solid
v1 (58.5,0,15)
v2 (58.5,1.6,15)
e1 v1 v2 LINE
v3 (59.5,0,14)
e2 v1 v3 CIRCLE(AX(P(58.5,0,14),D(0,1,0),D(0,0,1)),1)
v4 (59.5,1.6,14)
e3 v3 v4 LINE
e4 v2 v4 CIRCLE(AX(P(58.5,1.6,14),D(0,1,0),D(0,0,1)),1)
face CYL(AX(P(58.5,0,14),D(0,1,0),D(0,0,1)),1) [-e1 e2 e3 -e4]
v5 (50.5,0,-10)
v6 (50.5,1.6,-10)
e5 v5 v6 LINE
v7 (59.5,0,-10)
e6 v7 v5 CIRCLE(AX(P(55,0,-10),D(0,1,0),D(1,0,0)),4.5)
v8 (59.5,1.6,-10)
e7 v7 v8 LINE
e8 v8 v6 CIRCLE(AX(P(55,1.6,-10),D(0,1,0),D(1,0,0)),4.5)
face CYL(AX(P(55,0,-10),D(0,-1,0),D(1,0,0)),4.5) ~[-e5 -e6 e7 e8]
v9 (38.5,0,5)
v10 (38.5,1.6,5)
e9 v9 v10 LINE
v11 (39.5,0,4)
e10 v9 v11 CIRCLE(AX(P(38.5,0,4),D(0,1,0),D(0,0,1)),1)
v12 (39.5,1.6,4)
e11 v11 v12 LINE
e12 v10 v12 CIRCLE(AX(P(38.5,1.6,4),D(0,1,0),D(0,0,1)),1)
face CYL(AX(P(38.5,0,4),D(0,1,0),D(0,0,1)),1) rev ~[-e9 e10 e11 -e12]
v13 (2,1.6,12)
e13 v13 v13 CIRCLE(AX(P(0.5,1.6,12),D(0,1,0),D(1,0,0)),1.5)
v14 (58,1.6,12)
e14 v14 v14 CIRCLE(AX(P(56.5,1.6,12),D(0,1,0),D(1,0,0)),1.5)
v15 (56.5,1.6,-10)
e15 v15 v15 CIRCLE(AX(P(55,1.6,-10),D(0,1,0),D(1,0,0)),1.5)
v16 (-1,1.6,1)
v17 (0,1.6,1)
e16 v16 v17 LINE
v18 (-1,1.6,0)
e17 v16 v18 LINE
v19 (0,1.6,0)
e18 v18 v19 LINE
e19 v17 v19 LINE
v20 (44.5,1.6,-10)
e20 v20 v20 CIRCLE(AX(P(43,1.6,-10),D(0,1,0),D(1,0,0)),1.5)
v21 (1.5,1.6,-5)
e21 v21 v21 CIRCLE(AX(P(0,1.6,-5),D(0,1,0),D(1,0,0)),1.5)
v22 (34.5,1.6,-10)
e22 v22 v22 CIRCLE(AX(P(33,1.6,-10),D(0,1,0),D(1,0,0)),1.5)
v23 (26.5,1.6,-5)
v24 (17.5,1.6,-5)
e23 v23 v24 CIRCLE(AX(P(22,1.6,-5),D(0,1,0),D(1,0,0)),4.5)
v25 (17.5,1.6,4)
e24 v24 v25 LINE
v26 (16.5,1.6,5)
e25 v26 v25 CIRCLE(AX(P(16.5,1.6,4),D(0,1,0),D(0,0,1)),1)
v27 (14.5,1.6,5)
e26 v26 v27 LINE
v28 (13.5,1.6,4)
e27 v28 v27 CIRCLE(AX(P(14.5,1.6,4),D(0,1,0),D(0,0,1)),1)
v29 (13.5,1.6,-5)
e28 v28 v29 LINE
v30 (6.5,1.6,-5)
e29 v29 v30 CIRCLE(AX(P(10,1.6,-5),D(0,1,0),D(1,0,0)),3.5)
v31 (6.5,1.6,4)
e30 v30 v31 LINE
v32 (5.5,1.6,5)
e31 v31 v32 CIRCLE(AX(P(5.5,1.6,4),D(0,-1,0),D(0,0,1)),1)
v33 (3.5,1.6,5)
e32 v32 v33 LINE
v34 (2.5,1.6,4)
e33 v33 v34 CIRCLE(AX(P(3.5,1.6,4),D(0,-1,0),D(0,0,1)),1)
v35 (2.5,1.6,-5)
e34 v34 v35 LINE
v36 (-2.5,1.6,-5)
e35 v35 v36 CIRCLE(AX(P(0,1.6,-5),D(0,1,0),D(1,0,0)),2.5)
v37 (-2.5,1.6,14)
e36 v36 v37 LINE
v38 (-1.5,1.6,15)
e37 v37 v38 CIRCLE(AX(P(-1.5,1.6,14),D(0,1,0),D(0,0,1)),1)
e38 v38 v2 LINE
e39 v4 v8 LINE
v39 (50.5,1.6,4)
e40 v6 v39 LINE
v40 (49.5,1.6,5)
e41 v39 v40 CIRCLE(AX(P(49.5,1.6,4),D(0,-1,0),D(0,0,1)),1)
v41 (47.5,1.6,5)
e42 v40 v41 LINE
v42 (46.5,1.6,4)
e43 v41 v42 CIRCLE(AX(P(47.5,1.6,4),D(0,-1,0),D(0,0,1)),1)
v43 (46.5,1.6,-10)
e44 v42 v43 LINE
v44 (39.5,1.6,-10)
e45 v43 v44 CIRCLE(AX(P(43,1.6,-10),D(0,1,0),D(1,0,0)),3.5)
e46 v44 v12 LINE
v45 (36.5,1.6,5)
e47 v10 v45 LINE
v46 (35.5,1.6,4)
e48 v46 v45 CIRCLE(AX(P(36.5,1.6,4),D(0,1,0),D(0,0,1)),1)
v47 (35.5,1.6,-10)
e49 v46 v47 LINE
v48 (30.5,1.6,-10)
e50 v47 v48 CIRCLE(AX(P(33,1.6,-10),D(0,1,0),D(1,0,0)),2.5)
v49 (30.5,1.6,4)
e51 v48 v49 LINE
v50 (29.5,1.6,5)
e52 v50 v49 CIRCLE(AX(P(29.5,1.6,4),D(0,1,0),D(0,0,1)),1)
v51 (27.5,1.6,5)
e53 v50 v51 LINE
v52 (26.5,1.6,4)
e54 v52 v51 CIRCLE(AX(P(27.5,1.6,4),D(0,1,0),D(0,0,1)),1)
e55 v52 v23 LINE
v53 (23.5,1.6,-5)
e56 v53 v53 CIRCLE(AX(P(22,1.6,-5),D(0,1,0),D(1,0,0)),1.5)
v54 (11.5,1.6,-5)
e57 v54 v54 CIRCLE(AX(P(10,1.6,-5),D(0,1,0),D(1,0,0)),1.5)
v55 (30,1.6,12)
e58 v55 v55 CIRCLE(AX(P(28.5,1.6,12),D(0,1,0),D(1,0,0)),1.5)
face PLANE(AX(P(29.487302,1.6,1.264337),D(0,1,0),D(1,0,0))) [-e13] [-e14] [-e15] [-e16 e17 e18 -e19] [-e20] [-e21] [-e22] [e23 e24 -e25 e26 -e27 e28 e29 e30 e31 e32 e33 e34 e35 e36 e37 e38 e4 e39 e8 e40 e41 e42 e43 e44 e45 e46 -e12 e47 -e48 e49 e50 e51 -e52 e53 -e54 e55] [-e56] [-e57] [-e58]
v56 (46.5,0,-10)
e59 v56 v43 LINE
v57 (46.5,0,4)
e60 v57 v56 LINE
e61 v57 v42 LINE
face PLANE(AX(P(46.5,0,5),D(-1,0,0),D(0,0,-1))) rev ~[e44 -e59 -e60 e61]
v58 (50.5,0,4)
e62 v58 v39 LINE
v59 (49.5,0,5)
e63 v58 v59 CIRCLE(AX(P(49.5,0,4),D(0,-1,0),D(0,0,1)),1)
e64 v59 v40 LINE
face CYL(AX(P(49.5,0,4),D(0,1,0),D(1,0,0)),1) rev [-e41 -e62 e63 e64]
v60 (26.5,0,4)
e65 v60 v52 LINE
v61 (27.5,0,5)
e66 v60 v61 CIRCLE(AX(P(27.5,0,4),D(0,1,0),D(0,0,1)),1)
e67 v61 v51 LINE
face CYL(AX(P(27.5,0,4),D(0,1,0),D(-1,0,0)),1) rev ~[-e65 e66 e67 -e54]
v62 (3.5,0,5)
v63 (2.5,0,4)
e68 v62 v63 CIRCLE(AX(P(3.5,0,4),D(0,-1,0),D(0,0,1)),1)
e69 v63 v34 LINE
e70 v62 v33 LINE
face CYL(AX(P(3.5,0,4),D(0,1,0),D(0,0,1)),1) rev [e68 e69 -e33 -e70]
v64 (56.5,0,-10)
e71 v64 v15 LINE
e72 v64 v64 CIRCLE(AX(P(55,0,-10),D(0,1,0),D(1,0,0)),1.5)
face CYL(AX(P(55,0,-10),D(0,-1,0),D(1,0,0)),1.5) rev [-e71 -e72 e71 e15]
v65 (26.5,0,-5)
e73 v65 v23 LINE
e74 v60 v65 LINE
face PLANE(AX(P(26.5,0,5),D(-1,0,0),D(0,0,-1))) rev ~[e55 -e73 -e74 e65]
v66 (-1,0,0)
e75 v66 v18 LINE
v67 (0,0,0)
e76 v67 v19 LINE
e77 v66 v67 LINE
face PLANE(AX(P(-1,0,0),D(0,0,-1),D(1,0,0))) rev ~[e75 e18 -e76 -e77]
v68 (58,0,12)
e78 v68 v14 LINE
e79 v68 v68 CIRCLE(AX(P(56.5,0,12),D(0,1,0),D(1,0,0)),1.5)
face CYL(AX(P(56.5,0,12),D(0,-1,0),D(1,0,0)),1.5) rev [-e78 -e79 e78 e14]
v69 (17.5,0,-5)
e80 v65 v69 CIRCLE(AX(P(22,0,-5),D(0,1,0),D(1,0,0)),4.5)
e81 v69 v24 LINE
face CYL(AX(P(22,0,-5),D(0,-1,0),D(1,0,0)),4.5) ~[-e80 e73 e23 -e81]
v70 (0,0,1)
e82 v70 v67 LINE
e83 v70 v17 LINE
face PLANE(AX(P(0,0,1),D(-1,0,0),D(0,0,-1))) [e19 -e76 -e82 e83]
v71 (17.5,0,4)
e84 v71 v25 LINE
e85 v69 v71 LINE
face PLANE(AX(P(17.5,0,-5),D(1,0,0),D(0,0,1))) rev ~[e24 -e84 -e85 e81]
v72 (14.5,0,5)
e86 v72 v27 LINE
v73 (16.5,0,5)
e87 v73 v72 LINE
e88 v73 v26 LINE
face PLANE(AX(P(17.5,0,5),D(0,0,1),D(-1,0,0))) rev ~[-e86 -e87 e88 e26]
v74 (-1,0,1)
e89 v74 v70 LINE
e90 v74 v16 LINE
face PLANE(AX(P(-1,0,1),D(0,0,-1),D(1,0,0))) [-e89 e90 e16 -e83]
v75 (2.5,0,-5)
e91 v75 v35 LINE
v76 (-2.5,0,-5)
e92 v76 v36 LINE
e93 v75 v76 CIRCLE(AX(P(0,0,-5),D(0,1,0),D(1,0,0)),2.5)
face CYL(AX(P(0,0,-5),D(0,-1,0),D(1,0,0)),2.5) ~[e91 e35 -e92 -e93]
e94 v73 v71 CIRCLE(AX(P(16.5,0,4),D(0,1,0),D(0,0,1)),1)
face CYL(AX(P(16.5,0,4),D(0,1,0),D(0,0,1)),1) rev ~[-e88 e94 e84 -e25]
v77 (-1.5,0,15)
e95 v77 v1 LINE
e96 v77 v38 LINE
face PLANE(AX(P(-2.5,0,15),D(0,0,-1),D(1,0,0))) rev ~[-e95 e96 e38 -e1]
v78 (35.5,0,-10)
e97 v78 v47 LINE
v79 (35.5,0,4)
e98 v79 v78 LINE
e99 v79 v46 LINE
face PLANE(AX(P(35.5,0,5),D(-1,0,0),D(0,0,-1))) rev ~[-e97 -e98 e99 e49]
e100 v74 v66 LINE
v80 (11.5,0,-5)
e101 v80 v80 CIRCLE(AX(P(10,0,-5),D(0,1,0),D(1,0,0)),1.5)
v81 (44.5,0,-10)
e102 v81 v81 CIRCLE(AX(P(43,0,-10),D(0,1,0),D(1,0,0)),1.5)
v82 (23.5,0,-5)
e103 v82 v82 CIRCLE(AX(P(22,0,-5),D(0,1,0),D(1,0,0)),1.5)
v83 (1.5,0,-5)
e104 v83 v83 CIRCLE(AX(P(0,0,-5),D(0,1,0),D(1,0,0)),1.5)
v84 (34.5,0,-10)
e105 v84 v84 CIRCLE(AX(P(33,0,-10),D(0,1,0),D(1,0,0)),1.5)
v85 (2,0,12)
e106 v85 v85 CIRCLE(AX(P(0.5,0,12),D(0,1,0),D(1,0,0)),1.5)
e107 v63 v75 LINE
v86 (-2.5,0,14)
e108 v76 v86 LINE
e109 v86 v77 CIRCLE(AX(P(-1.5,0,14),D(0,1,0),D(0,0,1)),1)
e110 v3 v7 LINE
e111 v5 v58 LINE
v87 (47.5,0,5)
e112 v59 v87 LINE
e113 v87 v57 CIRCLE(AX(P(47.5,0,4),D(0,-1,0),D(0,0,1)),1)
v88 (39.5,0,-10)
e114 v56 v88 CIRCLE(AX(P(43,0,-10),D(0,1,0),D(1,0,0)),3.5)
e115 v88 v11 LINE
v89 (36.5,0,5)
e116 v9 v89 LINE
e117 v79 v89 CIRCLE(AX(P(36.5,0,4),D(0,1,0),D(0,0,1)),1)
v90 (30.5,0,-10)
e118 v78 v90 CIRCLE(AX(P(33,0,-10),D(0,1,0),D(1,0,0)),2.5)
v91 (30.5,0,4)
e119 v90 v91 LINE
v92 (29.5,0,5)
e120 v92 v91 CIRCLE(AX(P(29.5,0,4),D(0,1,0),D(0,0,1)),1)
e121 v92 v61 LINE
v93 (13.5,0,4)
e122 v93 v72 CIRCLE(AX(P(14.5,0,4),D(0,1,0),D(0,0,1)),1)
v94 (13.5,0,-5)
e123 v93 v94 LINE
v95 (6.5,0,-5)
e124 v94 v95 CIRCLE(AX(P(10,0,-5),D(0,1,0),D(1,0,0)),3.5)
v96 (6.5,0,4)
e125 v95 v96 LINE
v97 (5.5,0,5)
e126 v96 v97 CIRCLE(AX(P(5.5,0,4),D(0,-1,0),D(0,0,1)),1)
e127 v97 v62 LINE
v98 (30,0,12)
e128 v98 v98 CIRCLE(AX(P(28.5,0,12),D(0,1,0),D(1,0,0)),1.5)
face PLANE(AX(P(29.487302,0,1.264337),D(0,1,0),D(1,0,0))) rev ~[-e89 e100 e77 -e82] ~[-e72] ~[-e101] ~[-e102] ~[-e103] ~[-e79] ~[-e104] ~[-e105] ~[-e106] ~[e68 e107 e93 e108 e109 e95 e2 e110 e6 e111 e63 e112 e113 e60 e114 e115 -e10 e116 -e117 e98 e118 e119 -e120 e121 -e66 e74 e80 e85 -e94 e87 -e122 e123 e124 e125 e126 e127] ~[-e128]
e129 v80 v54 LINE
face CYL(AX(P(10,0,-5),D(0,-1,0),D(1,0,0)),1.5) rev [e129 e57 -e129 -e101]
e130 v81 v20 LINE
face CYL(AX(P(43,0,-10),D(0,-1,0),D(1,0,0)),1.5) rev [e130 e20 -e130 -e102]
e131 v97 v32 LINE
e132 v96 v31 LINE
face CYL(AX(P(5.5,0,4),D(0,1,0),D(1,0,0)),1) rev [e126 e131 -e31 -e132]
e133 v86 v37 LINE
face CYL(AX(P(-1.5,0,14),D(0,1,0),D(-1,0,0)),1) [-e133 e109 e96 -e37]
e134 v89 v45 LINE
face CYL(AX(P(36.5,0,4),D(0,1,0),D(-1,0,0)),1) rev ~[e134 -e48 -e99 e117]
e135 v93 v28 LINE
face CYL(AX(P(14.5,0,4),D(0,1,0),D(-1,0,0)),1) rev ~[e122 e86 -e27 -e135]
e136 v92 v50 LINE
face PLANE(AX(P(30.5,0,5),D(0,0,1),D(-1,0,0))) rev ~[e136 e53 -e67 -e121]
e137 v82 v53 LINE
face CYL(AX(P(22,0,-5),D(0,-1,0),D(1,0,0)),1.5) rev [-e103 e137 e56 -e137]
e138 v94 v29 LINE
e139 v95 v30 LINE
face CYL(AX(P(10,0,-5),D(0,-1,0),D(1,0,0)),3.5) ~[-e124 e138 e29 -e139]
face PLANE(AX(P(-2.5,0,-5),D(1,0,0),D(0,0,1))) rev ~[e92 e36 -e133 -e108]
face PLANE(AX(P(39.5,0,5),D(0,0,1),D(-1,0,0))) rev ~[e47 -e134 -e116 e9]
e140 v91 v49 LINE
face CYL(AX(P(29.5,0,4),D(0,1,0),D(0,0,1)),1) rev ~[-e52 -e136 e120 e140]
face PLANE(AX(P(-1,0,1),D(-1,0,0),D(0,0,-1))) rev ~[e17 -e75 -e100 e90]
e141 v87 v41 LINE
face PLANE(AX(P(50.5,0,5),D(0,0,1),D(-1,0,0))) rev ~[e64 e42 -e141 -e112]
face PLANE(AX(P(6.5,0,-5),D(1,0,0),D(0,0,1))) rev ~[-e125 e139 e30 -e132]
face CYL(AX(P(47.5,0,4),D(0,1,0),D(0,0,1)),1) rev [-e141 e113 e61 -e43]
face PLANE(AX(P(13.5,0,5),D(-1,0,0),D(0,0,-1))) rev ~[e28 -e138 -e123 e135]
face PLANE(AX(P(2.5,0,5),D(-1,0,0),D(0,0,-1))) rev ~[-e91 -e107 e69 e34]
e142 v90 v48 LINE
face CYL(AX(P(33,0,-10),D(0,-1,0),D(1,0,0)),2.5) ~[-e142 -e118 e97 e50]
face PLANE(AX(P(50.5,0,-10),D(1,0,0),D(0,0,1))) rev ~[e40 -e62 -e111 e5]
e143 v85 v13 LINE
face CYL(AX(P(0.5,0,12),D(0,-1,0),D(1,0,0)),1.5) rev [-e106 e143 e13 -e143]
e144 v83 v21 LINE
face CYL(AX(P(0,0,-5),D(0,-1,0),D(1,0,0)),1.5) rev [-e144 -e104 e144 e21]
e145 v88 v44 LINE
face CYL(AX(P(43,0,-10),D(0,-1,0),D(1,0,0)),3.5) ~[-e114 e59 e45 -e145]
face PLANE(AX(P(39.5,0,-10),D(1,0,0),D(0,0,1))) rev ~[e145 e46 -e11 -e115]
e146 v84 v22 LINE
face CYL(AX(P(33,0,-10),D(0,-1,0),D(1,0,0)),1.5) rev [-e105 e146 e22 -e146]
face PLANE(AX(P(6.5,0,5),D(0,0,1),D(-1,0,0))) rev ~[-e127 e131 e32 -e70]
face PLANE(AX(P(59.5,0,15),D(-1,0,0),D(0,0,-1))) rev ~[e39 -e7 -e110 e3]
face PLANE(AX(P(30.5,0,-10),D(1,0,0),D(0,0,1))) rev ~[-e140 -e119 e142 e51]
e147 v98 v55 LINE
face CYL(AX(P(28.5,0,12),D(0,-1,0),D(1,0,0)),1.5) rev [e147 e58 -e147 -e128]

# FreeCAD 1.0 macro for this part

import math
import FreeCAD as App
import Part
import Sketcher

V = App.Vector


def edges_at(feature, points):
    """Names of the edges that pass closest to the given points."""
    edges = feature.Shape.Edges
    near = lambda p: min(range(len(edges)), key=lambda i: edges[i].distToShape(Part.Vertex(*p))[0])
    return sorted({f"Edge{near(p) + 1}" for p in points})

doc = App.newDocument("Part")
body = doc.addObject("PartDesign::Body", "Body")

# Sketch on XZ plane
sketch1 = doc.addObject("Sketcher::SketchObject", "Sketch")
body.addObject(sketch1)
sketch1.AttachmentSupport = (doc.XZ_Plane, [""])
sketch1.MapMode = "FlatFace"
sketch1.addGeometry(Part.ArcOfCircle(Part.Circle(V(10, -5, 0), V(0, 0, 1), 3.5), math.radians(180), math.radians(360)), False)
sketch1.addGeometry(Part.LineSegment(V(6.5, -5, 0), V(6.5, 5, 0)), False)
sketch1.addGeometry(Part.LineSegment(V(6.5, 5, 0), V(2.5, 5, 0)), False)
sketch1.addGeometry(Part.LineSegment(V(2.5, 5, 0), V(2.5, -5, 0)), False)
sketch1.addGeometry(Part.ArcOfCircle(Part.Circle(V(0, -5, 0), V(0, 0, 1), 2.5), math.radians(180), math.radians(360)), False)
sketch1.addGeometry(Part.LineSegment(V(-2.5, -5, 0), V(-2.5, 15, 0)), False)
sketch1.addGeometry(Part.LineSegment(V(-2.5, 15, 0), V(59.5, 15, 0)), False)
sketch1.addGeometry(Part.LineSegment(V(59.5, 15, 0), V(59.5, -10, 0)), False)
sketch1.addGeometry(Part.ArcOfCircle(Part.Circle(V(55, -10, 0), V(0, 0, 1), 4.5), math.radians(180), math.radians(360)), False)
sketch1.addGeometry(Part.LineSegment(V(50.5, -10, 0), V(50.5, 5, 0)), False)
sketch1.addGeometry(Part.LineSegment(V(50.5, 5, 0), V(46.5, 5, 0)), False)
sketch1.addGeometry(Part.LineSegment(V(46.5, 5, 0), V(46.5, -10, 0)), False)
sketch1.addGeometry(Part.ArcOfCircle(Part.Circle(V(43, -10, 0), V(0, 0, 1), 3.5), math.radians(180), math.radians(360)), False)
sketch1.addGeometry(Part.LineSegment(V(39.5, -10, 0), V(39.5, 5, 0)), False)
sketch1.addGeometry(Part.LineSegment(V(39.5, 5, 0), V(35.5, 5, 0)), False)
sketch1.addGeometry(Part.LineSegment(V(35.5, 5, 0), V(35.5, -10, 0)), False)
sketch1.addGeometry(Part.ArcOfCircle(Part.Circle(V(33, -10, 0), V(0, 0, 1), 2.5), math.radians(180), math.radians(360)), False)
sketch1.addGeometry(Part.LineSegment(V(30.5, -10, 0), V(30.5, 5, 0)), False)
sketch1.addGeometry(Part.LineSegment(V(30.5, 5, 0), V(26.5, 5, 0)), False)
sketch1.addGeometry(Part.LineSegment(V(26.5, 5, 0), V(26.5, -5, 0)), False)
sketch1.addGeometry(Part.ArcOfCircle(Part.Circle(V(22, -5, 0), V(0, 0, 1), 4.5), math.radians(180), math.radians(360)), False)
sketch1.addGeometry(Part.LineSegment(V(17.5, -5, 0), V(17.5, 5, 0)), False)
sketch1.addGeometry(Part.LineSegment(V(17.5, 5, 0), V(13.5, 5, 0)), False)
sketch1.addGeometry(Part.LineSegment(V(13.5, 5, 0), V(13.5, -5, 0)), False)
sketch1.addGeometry(Part.Circle(V(0.5, 12, 0), V(0, 0, 1), 1.5), False)
sketch1.addGeometry(Part.Circle(V(28.5, 12, 0), V(0, 0, 1), 1.5), False)
sketch1.addGeometry(Part.Circle(V(56.5, 12, 0), V(0, 0, 1), 1.5), False)
sketch1.addGeometry(Part.LineSegment(V(0, 1, 0), V(-1, 1, 0)), False)
sketch1.addGeometry(Part.LineSegment(V(-1, 1, 0), V(-1, 0, 0)), False)
sketch1.addGeometry(Part.LineSegment(V(-1, 0, 0), V(0, 0, 0)), False)
sketch1.addGeometry(Part.LineSegment(V(0, 0, 0), V(0, 1, 0)), False)
sketch1.addGeometry(Part.Circle(V(0, -5, 0), V(0, 0, 1), 1.5), False)
sketch1.addGeometry(Part.Circle(V(10, -5, 0), V(0, 0, 1), 1.5), False)
sketch1.addGeometry(Part.Circle(V(22, -5, 0), V(0, 0, 1), 1.5), False)
sketch1.addGeometry(Part.Circle(V(33, -10, 0), V(0, 0, 1), 1.5), False)
sketch1.addGeometry(Part.Circle(V(43, -10, 0), V(0, 0, 1), 1.5), False)
sketch1.addGeometry(Part.Circle(V(55, -10, 0), V(0, 0, 1), 1.5), False)
sketch1.addConstraint(Sketcher.Constraint("Tangent", 0, 1, 1, 1))
sketch1.addConstraint(Sketcher.Constraint("Coincident", 1, 2, 2, 1))
sketch1.addConstraint(Sketcher.Constraint("Coincident", 2, 2, 3, 1))
sketch1.addConstraint(Sketcher.Constraint("Tangent", 3, 2, 4, 2))
sketch1.addConstraint(Sketcher.Constraint("Tangent", 4, 1, 5, 1))
sketch1.addConstraint(Sketcher.Constraint("Coincident", 5, 2, 6, 1))
sketch1.addConstraint(Sketcher.Constraint("Coincident", 6, 2, 7, 1))
sketch1.addConstraint(Sketcher.Constraint("Tangent", 7, 2, 8, 2))
sketch1.addConstraint(Sketcher.Constraint("Tangent", 8, 1, 9, 1))
sketch1.addConstraint(Sketcher.Constraint("Coincident", 9, 2, 10, 1))
sketch1.addConstraint(Sketcher.Constraint("Coincident", 10, 2, 11, 1))
sketch1.addConstraint(Sketcher.Constraint("Tangent", 11, 2, 12, 2))
sketch1.addConstraint(Sketcher.Constraint("Tangent", 12, 1, 13, 1))
sketch1.addConstraint(Sketcher.Constraint("Coincident", 13, 2, 14, 1))
sketch1.addConstraint(Sketcher.Constraint("Coincident", 14, 2, 15, 1))
sketch1.addConstraint(Sketcher.Constraint("Tangent", 15, 2, 16, 2))
sketch1.addConstraint(Sketcher.Constraint("Tangent", 16, 1, 17, 1))
sketch1.addConstraint(Sketcher.Constraint("Coincident", 17, 2, 18, 1))
sketch1.addConstraint(Sketcher.Constraint("Coincident", 18, 2, 19, 1))
sketch1.addConstraint(Sketcher.Constraint("Tangent", 19, 2, 20, 2))
sketch1.addConstraint(Sketcher.Constraint("Tangent", 20, 1, 21, 1))
sketch1.addConstraint(Sketcher.Constraint("Coincident", 21, 2, 22, 1))
sketch1.addConstraint(Sketcher.Constraint("Coincident", 22, 2, 23, 1))
sketch1.addConstraint(Sketcher.Constraint("Tangent", 23, 2, 0, 2))
sketch1.addConstraint(Sketcher.Constraint("Coincident", 27, 2, 28, 1))
sketch1.addConstraint(Sketcher.Constraint("Coincident", 28, 2, 29, 1))
sketch1.addConstraint(Sketcher.Constraint("Coincident", 29, 2, 30, 1))
sketch1.addConstraint(Sketcher.Constraint("Coincident", 30, 2, 27, 1))
sketch1.addConstraint(Sketcher.Constraint("Vertical", 1))
sketch1.addConstraint(Sketcher.Constraint("Horizontal", 2))
sketch1.addConstraint(Sketcher.Constraint("Vertical", 3))
sketch1.addConstraint(Sketcher.Constraint("Vertical", 5))
sketch1.addConstraint(Sketcher.Constraint("Horizontal", 6))
sketch1.addConstraint(Sketcher.Constraint("Vertical", 7))
sketch1.addConstraint(Sketcher.Constraint("Vertical", 9))
sketch1.addConstraint(Sketcher.Constraint("Horizontal", 10))
sketch1.addConstraint(Sketcher.Constraint("Vertical", 11))
sketch1.addConstraint(Sketcher.Constraint("Vertical", 13))
sketch1.addConstraint(Sketcher.Constraint("Horizontal", 14))
sketch1.addConstraint(Sketcher.Constraint("Vertical", 15))
sketch1.addConstraint(Sketcher.Constraint("Vertical", 17))
sketch1.addConstraint(Sketcher.Constraint("Horizontal", 18))
sketch1.addConstraint(Sketcher.Constraint("Vertical", 19))
sketch1.addConstraint(Sketcher.Constraint("Vertical", 21))
sketch1.addConstraint(Sketcher.Constraint("Horizontal", 22))
sketch1.addConstraint(Sketcher.Constraint("Vertical", 23))
sketch1.addConstraint(Sketcher.Constraint("Horizontal", 27))
sketch1.addConstraint(Sketcher.Constraint("Vertical", 28))
sketch1.addConstraint(Sketcher.Constraint("Horizontal", 29))
sketch1.addConstraint(Sketcher.Constraint("Vertical", 30))
sketch1.addConstraint(Sketcher.Constraint("Coincident", 29, 2, -1, 1))
sketch1.addConstraint(Sketcher.Constraint("Coincident", 31, 3, 4, 3))
sketch1.addConstraint(Sketcher.Constraint("Coincident", 32, 3, 0, 3))
sketch1.addConstraint(Sketcher.Constraint("Coincident", 33, 3, 20, 3))
sketch1.addConstraint(Sketcher.Constraint("Coincident", 34, 3, 16, 3))
sketch1.addConstraint(Sketcher.Constraint("Coincident", 35, 3, 12, 3))
sketch1.addConstraint(Sketcher.Constraint("Coincident", 36, 3, 8, 3))
sketch1.addConstraint(Sketcher.Constraint("Equal", 0, 12))
sketch1.addConstraint(Sketcher.Constraint("Equal", 4, 16))
sketch1.addConstraint(Sketcher.Constraint("Equal", 8, 20))
sketch1.addConstraint(Sketcher.Constraint("Equal", 24, 25))
sketch1.addConstraint(Sketcher.Constraint("Equal", 25, 26))
sketch1.addConstraint(Sketcher.Constraint("Equal", 26, 31))
sketch1.addConstraint(Sketcher.Constraint("Equal", 31, 32))
sketch1.addConstraint(Sketcher.Constraint("Equal", 32, 33))
sketch1.addConstraint(Sketcher.Constraint("Equal", 33, 34))
sketch1.addConstraint(Sketcher.Constraint("Equal", 34, 35))
sketch1.addConstraint(Sketcher.Constraint("Equal", 35, 36))
sketch1.addConstraint(Sketcher.Constraint("Symmetric", 2, 2, 4, 1, -1, 1))
sketch1.addConstraint(Sketcher.Constraint("Horizontal", 0, 3, 4, 3))
sketch1.addConstraint(Sketcher.Constraint("Horizontal", 8, 3, 12, 3))
sketch1.addConstraint(Sketcher.Constraint("Horizontal", 12, 3, 16, 3))
sketch1.addConstraint(Sketcher.Constraint("Horizontal", 4, 3, 20, 3))
sketch1.addConstraint(Sketcher.Constraint("Horizontal", 24, 3, 25, 3))
sketch1.addConstraint(Sketcher.Constraint("Horizontal", 25, 3, 26, 3))
sketch1.addConstraint(Sketcher.Constraint("Horizontal", 2, 2, 9, 2))
sketch1.addConstraint(Sketcher.Constraint("Horizontal", 10, 2, 13, 2))
sketch1.addConstraint(Sketcher.Constraint("Horizontal", 14, 2, 17, 2))
sketch1.addConstraint(Sketcher.Constraint("Horizontal", 18, 2, 21, 2))
sketch1.addConstraint(Sketcher.Constraint("Equal", 2, 10))
sketch1.addConstraint(Sketcher.Constraint("Equal", 10, 14))
sketch1.addConstraint(Sketcher.Constraint("Equal", 14, 18))
sketch1.addConstraint(Sketcher.Constraint("Equal", 18, 22))
sketch1.addConstraint(Sketcher.Constraint("Equal", 29, 28))
sketch1.addConstraint(Sketcher.Constraint("Diameter", 24, 3.0))
sketch1.addConstraint(Sketcher.Constraint("Radius", 0, 3.5))
sketch1.addConstraint(Sketcher.Constraint("Radius", 4, 2.5))
sketch1.addConstraint(Sketcher.Constraint("Radius", 8, 4.5))
sketch1.addConstraint(Sketcher.Constraint("DistanceX", 2, 2, 2, 1, 4.0))
sketch1.addConstraint(Sketcher.Constraint("DistanceX", 27, 2, 27, 1, 1.0))
sketch1.addConstraint(Sketcher.Constraint("DistanceY", 1, 1, 1, 2, 10.0))
sketch1.addConstraint(Sketcher.Constraint("DistanceY", 5, 1, 5, 2, 20.0))
sketch1.addConstraint(Sketcher.Constraint("DistanceY", 7, 2, 7, 1, 25.0))
sketch1.addConstraint(Sketcher.Constraint("DistanceY", -1, 1, 24, 3, 12.0))
sketch1.addConstraint(Sketcher.Constraint("DistanceX", 24, 3, 25, 3, 28.0))
sketch1.addConstraint(Sketcher.Constraint("DistanceX", 25, 3, 26, 3, 28.0))
sketch1.addConstraint(Sketcher.Constraint("DistanceX", 24, 3, 1, 2, 6.0))
pad1 = doc.addObject("PartDesign::Pad", "Pad")
body.addObject(pad1)
pad1.Profile = sketch1
pad1.Length = 1.6
pad1.Reversed = True
doc.recompute()

fillet = doc.addObject("PartDesign::Fillet", "Fillet")
body.addObject(fillet)
fillet.Base = (pad1, edges_at(pad1, [
    (2.5, 0.8, 5),
    (6.5, 0.8, 5),
    (13.5, 0.8, 5),
    (17.5, 0.8, 5),
    (26.5, 0.8, 5),
    (30.5, 0.8, 5),
    (35.5, 0.8, 5),
    (39.5, 0.8, 5),
    (46.5, 0.8, 5),
    (50.5, 0.8, 5),
    (59.5, 0.8, 15),
    (-2.5, 0.8, 15),
]))
fillet.Radius = 1

doc.recompute()
